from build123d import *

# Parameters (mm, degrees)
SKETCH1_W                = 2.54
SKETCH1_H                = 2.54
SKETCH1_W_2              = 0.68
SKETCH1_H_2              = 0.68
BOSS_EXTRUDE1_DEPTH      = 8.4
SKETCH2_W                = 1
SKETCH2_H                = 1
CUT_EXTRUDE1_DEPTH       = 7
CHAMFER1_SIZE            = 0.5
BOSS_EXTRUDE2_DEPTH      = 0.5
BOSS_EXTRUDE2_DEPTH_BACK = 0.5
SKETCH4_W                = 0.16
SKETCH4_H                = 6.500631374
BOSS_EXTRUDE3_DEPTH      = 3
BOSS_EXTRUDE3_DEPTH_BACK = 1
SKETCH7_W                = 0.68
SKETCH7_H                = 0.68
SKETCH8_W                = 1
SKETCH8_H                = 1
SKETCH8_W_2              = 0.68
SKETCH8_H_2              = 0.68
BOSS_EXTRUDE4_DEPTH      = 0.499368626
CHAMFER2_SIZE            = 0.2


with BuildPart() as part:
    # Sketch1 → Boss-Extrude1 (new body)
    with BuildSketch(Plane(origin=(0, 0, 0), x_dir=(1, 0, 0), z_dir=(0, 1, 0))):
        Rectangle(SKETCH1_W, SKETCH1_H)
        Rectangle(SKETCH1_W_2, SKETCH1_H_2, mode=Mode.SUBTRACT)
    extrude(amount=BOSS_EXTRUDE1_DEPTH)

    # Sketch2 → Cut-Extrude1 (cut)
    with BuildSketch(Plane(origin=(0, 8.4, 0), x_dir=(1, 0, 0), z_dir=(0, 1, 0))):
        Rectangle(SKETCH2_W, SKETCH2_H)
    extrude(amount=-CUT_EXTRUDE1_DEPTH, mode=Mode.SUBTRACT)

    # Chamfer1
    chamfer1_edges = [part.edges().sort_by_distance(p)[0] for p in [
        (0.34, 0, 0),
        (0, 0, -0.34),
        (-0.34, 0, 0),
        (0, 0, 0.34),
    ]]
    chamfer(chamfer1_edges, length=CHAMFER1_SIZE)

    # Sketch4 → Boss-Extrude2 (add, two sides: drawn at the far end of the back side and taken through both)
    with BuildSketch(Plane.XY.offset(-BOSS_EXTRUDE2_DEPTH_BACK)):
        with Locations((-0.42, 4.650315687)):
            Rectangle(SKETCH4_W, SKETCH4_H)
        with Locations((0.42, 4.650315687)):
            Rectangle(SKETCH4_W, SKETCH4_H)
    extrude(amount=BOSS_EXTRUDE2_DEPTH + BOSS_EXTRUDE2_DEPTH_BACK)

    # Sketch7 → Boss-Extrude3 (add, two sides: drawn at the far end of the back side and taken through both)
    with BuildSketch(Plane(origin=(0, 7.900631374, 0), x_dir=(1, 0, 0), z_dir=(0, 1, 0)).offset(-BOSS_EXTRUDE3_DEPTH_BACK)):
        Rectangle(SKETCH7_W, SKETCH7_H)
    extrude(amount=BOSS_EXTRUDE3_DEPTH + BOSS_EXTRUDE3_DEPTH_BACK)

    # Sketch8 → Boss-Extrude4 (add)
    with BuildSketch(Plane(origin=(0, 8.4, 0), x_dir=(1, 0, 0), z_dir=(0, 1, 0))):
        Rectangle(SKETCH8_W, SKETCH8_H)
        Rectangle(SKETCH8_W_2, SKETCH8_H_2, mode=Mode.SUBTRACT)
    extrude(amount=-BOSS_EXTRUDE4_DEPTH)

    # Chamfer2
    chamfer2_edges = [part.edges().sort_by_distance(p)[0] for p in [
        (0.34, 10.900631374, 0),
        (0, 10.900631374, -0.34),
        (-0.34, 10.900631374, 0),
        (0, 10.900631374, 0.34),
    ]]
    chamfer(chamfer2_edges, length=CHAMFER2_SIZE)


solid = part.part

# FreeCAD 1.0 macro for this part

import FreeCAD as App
import Part
import Sketcher
from FreeCAD import Vector
Q = App.Units.Quantity


def edges_at(feature, points):
    """Names of the edges that pass closest to the given points."""
    edges = feature.Shape.Edges
    near = lambda p: min(range(len(edges)), key=lambda i: edges[i].distToShape(Part.Vertex(*p))[0])
    return sorted({f"Edge{near(p) + 1}" for p in points})

doc = App.newDocument("Part")
body = doc.addObject("PartDesign::Body", "Body")

# Sketch on XZ plane
sketch1 = body.newObject("Sketcher::SketchObject", "Sketch")
sketch1.AttachmentSupport = (doc.getObject("XZ_Plane"), [""])
sketch1.MapMode = "FlatFace"
sketch1.addGeometry([
    Part.LineSegment(Vector(-1.3, -1.3, 0), Vector(-1.3, 1.3, 0)),  # 0
    Part.LineSegment(Vector(-1.3, 1.3, 0), Vector(1.3, 1.3, 0)),  # 1
    Part.LineSegment(Vector(1.3, 1.3, 0), Vector(1.3, -1.3, 0)),  # 2
    Part.LineSegment(Vector(1.3, -1.3, 0), Vector(-1.3, -1.3, 0)),  # 3
    Part.LineSegment(Vector(0.3, 0.3, 0), Vector(-0.3, 0.3, 0)),  # 4
    Part.LineSegment(Vector(-0.3, 0.3, 0), Vector(-0.3, -0.3, 0)),  # 5
    Part.LineSegment(Vector(-0.3, -0.3, 0), Vector(0.3, -0.3, 0)),  # 6
    Part.LineSegment(Vector(0.3, -0.3, 0), Vector(0.3, 0.3, 0)),  # 7
], False)
sketch1.addConstraint([
    Sketcher.Constraint("Coincident", 0, 2, 1, 1),
    Sketcher.Constraint("Coincident", 1, 2, 2, 1),
    Sketcher.Constraint("Coincident", 2, 2, 3, 1),
    Sketcher.Constraint("Coincident", 3, 2, 0, 1),
    Sketcher.Constraint("Coincident", 4, 2, 5, 1),
    Sketcher.Constraint("Coincident", 5, 2, 6, 1),
    Sketcher.Constraint("Coincident", 6, 2, 7, 1),
    Sketcher.Constraint("Coincident", 7, 2, 4, 1),
    Sketcher.Constraint("Vertical", 0),
    Sketcher.Constraint("Horizontal", 1),
    Sketcher.Constraint("Vertical", 2),
    Sketcher.Constraint("Horizontal", 3),
    Sketcher.Constraint("Horizontal", 4),
    Sketcher.Constraint("Vertical", 5),
    Sketcher.Constraint("Horizontal", 6),
    Sketcher.Constraint("Vertical", 7),
    Sketcher.Constraint("Symmetric", 0, 2, 2, 2, -1, 1),
    Sketcher.Constraint("Symmetric", 4, 2, 6, 2, -1, 1),
    Sketcher.Constraint("Equal", 3, 0),
    Sketcher.Constraint("Equal", 6, 5),
    Sketcher.Constraint("DistanceX", 1, 1, 1, 2, Q("2.54 mm")),
    Sketcher.Constraint("DistanceX", 4, 2, 4, 1, Q("0.68 mm")),
])
pad1 = body.newObject("PartDesign::Pad", "Pad")
pad1.Profile = sketch1
pad1.Length = 8.4
pad1.Reversed = True

# Sketch on XZ plane
sketch2 = body.newObject("Sketcher::SketchObject", "Sketch001")
sketch2.AttachmentSupport = (doc.getObject("XZ_Plane"), [""])
sketch2.MapMode = "FlatFace"
sketch2.AttachmentOffset = App.Placement(Vector(0, 0, -8.4), App.Rotation())
sketch2.addGeometry([
    Part.LineSegment(Vector(-0.5, -0.5, 0), Vector(-0.5, 0.5, 0)),
    Part.LineSegment(Vector(-0.5, 0.5, 0), Vector(0.5, 0.5, 0)),
    Part.LineSegment(Vector(0.5, 0.5, 0), Vector(0.5, -0.5, 0)),
    Part.LineSegment(Vector(0.5, -0.5, 0), Vector(-0.5, -0.5, 0)),
], False)
sketch2.addConstraint([
    Sketcher.Constraint("Coincident", 0, 2, 1, 1),
    Sketcher.Constraint("Coincident", 1, 2, 2, 1),
    Sketcher.Constraint("Coincident", 2, 2, 3, 1),
    Sketcher.Constraint("Coincident", 3, 2, 0, 1),
    Sketcher.Constraint("Vertical", 0),
    Sketcher.Constraint("Horizontal", 1),
    Sketcher.Constraint("Vertical", 2),
    Sketcher.Constraint("Horizontal", 3),
    Sketcher.Constraint("Symmetric", 0, 2, 2, 2, -1, 1),
    Sketcher.Constraint("Equal", 3, 0),
    Sketcher.Constraint("DistanceX", 1, 1, 1, 2, Q("1 mm")),
])
pocket1 = body.newObject("PartDesign::Pocket", "Pocket")
pocket1.Profile = sketch2
pocket1.Length = 7
pocket1.Reversed = True
doc.recompute()

chamfer = body.newObject("PartDesign::Chamfer", "Chamfer")
chamfer.Base = (pocket1, edges_at(pocket1, [
    (0.34, 0, 0),
    (0, 0, -0.34),
    (-0.34, 0, 0),
    (0, 0, 0.34),
]))
chamfer.Size = 0.5

# Sketch on XY plane
sketch3 = body.newObject("Sketcher::SketchObject", "Sketch002")
sketch3.AttachmentSupport = (doc.getObject("XY_Plane"), [""])
sketch3.MapMode = "FlatFace"
sketch3.addGeometry([
    Part.LineSegment(Vector(-0.5, 7.9, 0), Vector(-0.5, 1.4, 0)),  # 0
    Part.LineSegment(Vector(-0.5, 1.4, 0), Vector(-0.34, 1.4, 0)),  # 1
    Part.LineSegment(Vector(-0.34, 1.4, 0), Vector(-0.34, 7.9, 0)),  # 2
    Part.LineSegment(Vector(-0.34, 7.9, 0), Vector(-0.5, 7.9, 0)),  # 3
    Part.LineSegment(Vector(0.34, 7.9, 0), Vector(0.34, 1.4, 0)),  # 4
    Part.LineSegment(Vector(0.34, 1.4, 0), Vector(0.5, 1.4, 0)),  # 5
    Part.LineSegment(Vector(0.5, 1.4, 0), Vector(0.5, 7.9, 0)),  # 6
    Part.LineSegment(Vector(0.5, 7.9, 0), Vector(0.34, 7.9, 0)),  # 7
], False)
sketch3.addConstraint([
    Sketcher.Constraint("Coincident", 0, 2, 1, 1),
    Sketcher.Constraint("Coincident", 1, 2, 2, 1),
    Sketcher.Constraint("Coincident", 2, 2, 3, 1),
    Sketcher.Constraint("Coincident", 3, 2, 0, 1),
    Sketcher.Constraint("Coincident", 4, 2, 5, 1),
    Sketcher.Constraint("Coincident", 5, 2, 6, 1),
    Sketcher.Constraint("Coincident", 6, 2, 7, 1),
    Sketcher.Constraint("Coincident", 7, 2, 4, 1),
    Sketcher.Constraint("Vertical", 0),
    Sketcher.Constraint("Horizontal", 1),
    Sketcher.Constraint("Vertical", 2),
    Sketcher.Constraint("Horizontal", 3),
    Sketcher.Constraint("Vertical", 4),
    Sketcher.Constraint("Horizontal", 5),
    Sketcher.Constraint("Vertical", 6),
    Sketcher.Constraint("Horizontal", 7),
    Sketcher.Constraint("Symmetric", 1, 2, 4, 2, -2),
    Sketcher.Constraint("Symmetric", 3, 2, 6, 2, -2),
    Sketcher.Constraint("DistanceX", 0, 2, 5, 2, Q("1 mm")),
    Sketcher.Constraint("DistanceX", 1, 1, 1, 2, Q("0.16 mm")),
    Sketcher.Constraint("DistanceY", -1, 1, 0, 2, Q("1.4 mm")),
    Sketcher.Constraint("DistanceY", 0, 2, 0, 1, Q("6.500631 mm")),
])
pad2 = body.newObject("PartDesign::Pad", "Pad001")
pad2.Profile = sketch3
pad2.Type = "TwoLengths"
pad2.Length = 0.5
pad2.Length2 = 0.5

# Sketch on XZ plane
sketch4 = body.newObject("Sketcher::SketchObject", "Sketch003")
sketch4.AttachmentSupport = (doc.getObject("XZ_Plane"), [""])
sketch4.MapMode = "FlatFace"
sketch4.AttachmentOffset = App.Placement(Vector(0, 0, -7.900631), App.Rotation())
sketch4.addGeometry([
    Part.LineSegment(Vector(-0.3, -0.3, 0), Vector(-0.3, 0.3, 0)),
    Part.LineSegment(Vector(-0.3, 0.3, 0), Vector(0.3, 0.3, 0)),
    Part.LineSegment(Vector(0.3, 0.3, 0), Vector(0.3, -0.3, 0)),
    Part.LineSegment(Vector(0.3, -0.3, 0), Vector(-0.3, -0.3, 0)),
], False)
sketch4.addConstraint([
    Sketcher.Constraint("Coincident", 0, 2, 1, 1),
    Sketcher.Constraint("Coincident", 1, 2, 2, 1),
    Sketcher.Constraint("Coincident", 2, 2, 3, 1),
    Sketcher.Constraint("Coincident", 3, 2, 0, 1),
    Sketcher.Constraint("Vertical", 0),
    Sketcher.Constraint("Horizontal", 1),
    Sketcher.Constraint("Vertical", 2),
    Sketcher.Constraint("Horizontal", 3),
    Sketcher.Constraint("Symmetric", 0, 2, 2, 2, -1, 1),
    Sketcher.Constraint("Equal", 3, 0),
    Sketcher.Constraint("DistanceX", 1, 1, 1, 2, Q("0.68 mm")),
])
pad3 = body.newObject("PartDesign::Pad", "Pad002")
pad3.Profile = sketch4
pad3.Type = "TwoLengths"
pad3.Length = 3
pad3.Length2 = 1
pad3.Reversed = True

# Sketch on XZ plane
sketch5 = body.newObject("Sketcher::SketchObject", "Sketch004")
sketch5.AttachmentSupport = (doc.getObject("XZ_Plane"), [""])
sketch5.MapMode = "FlatFace"
sketch5.AttachmentOffset = App.Placement(Vector(0, 0, -8.4), App.Rotation())
sketch5.addGeometry([
    Part.LineSegment(Vector(-0.5, -0.5, 0), Vector(-0.5, 0.5, 0)),  # 0
    Part.LineSegment(Vector(-0.5, 0.5, 0), Vector(0.5, 0.5, 0)),  # 1
    Part.LineSegment(Vector(0.5, 0.5, 0), Vector(0.5, -0.5, 0)),  # 2
    Part.LineSegment(Vector(0.5, -0.5, 0), Vector(-0.5, -0.5, 0)),  # 3
    Part.LineSegment(Vector(0.3, 0.3, 0), Vector(-0.3, 0.3, 0)),  # 4
    Part.LineSegment(Vector(-0.3, 0.3, 0), Vector(-0.3, -0.3, 0)),  # 5
    Part.LineSegment(Vector(-0.3, -0.3, 0), Vector(0.3, -0.3, 0)),  # 6
    Part.LineSegment(Vector(0.3, -0.3, 0), Vector(0.3, 0.3, 0)),  # 7
], False)
sketch5.addConstraint([
    Sketcher.Constraint("Coincident", 0, 2, 1, 1),
    Sketcher.Constraint("Coincident", 1, 2, 2, 1),
    Sketcher.Constraint("Coincident", 2, 2, 3, 1),
    Sketcher.Constraint("Coincident", 3, 2, 0, 1),
    Sketcher.Constraint("Coincident", 4, 2, 5, 1),
    Sketcher.Constraint("Coincident", 5, 2, 6, 1),
    Sketcher.Constraint("Coincident", 6, 2, 7, 1),
    Sketcher.Constraint("Coincident", 7, 2, 4, 1),
    Sketcher.Constraint("Vertical", 0),
    Sketcher.Constraint("Horizontal", 1),
    Sketcher.Constraint("Vertical", 2),
    Sketcher.Constraint("Horizontal", 3),
    Sketcher.Constraint("Horizontal", 4),
    Sketcher.Constraint("Vertical", 5),
    Sketcher.Constraint("Horizontal", 6),
    Sketcher.Constraint("Vertical", 7),
    Sketcher.Constraint("Symmetric", 0, 2, 2, 2, -1, 1),
    Sketcher.Constraint("Symmetric", 4, 2, 6, 2, -1, 1),
    Sketcher.Constraint("Equal", 3, 0),
    Sketcher.Constraint("Equal", 6, 5),
    Sketcher.Constraint("DistanceX", 1, 1, 1, 2, Q("1 mm")),
    Sketcher.Constraint("DistanceX", 4, 2, 4, 1, Q("0.68 mm")),
])
pad4 = body.newObject("PartDesign::Pad", "Pad003")
pad4.Profile = sketch5
pad4.Length = 0.499369
doc.recompute()

chamfer2 = body.newObject("PartDesign::Chamfer", "Chamfer001")
chamfer2.Base = (pad4, edges_at(pad4, [
    (0.34, 10.901, 0),
    (0, 10.901, -0.34),
    (-0.34, 10.901, 0),
    (0, 10.901, 0.34),
]))
chamfer2.Size = 0.2

doc.recompute()
